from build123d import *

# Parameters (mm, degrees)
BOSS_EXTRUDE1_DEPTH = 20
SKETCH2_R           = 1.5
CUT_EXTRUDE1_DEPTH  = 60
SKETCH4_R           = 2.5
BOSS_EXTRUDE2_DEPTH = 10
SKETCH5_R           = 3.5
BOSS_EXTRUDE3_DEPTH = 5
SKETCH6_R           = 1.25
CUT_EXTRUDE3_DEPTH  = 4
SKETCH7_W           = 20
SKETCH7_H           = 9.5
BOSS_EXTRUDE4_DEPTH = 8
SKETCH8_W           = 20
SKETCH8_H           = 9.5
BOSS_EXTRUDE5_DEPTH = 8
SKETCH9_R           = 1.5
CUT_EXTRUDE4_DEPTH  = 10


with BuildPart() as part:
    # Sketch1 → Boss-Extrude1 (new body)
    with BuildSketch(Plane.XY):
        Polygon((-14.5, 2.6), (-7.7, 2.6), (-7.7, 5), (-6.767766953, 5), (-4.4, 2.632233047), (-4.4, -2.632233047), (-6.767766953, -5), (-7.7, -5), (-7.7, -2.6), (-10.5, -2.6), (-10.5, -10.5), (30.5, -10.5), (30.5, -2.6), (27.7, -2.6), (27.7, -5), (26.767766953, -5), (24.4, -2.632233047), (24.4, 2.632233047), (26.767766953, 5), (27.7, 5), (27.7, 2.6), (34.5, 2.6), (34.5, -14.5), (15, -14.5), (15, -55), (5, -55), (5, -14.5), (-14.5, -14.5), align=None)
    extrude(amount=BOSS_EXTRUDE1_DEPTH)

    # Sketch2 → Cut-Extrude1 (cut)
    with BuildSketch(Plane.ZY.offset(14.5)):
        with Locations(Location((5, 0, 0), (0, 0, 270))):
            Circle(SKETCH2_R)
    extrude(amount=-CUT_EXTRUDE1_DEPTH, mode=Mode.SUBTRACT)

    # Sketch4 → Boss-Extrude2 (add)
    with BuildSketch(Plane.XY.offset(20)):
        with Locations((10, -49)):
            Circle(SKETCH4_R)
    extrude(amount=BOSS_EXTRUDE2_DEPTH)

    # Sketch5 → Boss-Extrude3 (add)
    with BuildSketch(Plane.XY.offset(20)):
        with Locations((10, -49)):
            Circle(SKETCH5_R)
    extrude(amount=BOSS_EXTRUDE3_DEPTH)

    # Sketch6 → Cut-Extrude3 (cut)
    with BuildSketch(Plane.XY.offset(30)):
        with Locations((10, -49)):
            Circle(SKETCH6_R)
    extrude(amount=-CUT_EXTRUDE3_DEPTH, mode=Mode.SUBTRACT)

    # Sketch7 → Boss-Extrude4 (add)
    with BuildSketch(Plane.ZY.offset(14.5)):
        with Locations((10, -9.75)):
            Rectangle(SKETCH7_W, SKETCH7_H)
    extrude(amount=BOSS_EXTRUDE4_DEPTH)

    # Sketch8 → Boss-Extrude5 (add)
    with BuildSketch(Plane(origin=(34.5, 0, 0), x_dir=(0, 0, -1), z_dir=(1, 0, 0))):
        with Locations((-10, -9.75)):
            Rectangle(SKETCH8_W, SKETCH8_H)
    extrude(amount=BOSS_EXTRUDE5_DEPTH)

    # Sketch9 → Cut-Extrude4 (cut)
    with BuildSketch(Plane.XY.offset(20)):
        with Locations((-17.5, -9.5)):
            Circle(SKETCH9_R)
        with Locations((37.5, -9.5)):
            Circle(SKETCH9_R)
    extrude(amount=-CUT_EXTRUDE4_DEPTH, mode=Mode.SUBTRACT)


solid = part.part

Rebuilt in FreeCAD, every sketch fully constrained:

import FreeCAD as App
import Part
import Sketcher

V = App.Vector
Q = App.Units.Quantity


def add_polygon(sketch, points):
    """Adds a closed chain of lines whose ends are joined by coincident constraints."""
    first, n = sketch.GeometryCount, len(points)
    for a, b in zip(points, points[1:] + points[:1]):
        sketch.addGeometry(Part.LineSegment(App.Vector(*a, 0), App.Vector(*b, 0)), False)
    for i in range(n):
        sketch.addConstraint(Sketcher.Constraint("Coincident", first + i, 2, first + (i + 1) % n, 1))

doc = App.newDocument("Part")
body = doc.addObject("PartDesign::Body", "Body")

# Sketch on XY plane
sketch1 = body.newObject("Sketcher::SketchObject", "Sketch")
sketch1.AttachmentSupport = (doc.getObject("XY_Plane"), [""])
sketch1.MapMode = "FlatFace"
add_polygon(sketch1, [(-7.7, 2.6), (-14.5, 2.6), (-14.5, -14.5), (5, -14.5), (5, -55), (15, -55), (15, -14.5), (34.5, -14.5), (34.5, 2.6), (27.7, 2.6), (27.7, 5), (26.8, 5), (24.4, 2.6), (24.4, -2.6), (26.8, -5), (27.7, -5), (27.7, -2.6), (30.5, -2.6), (30.5, -10.5), (-10.5, -10.5), (-10.5, -2.6), (-7.7, -2.6), (-7.7, -5), (-6.8, -5), (-4.4, -2.6), (-4.4, 2.6), (-6.8, 5), (-7.7, 5)])  # lines 0-27
sketch1.addConstraint([
    Sketcher.Constraint("Horizontal", 0),
    Sketcher.Constraint("Vertical", 1),
    Sketcher.Constraint("Horizontal", 2),
    Sketcher.Constraint("Vertical", 3),
    Sketcher.Constraint("Horizontal", 4),
    Sketcher.Constraint("Vertical", 5),
    Sketcher.Constraint("Horizontal", 6),
    Sketcher.Constraint("Vertical", 7),
    Sketcher.Constraint("Horizontal", 8),
    Sketcher.Constraint("Vertical", 9),
    Sketcher.Constraint("Horizontal", 10),
    Sketcher.Constraint("Vertical", 12),
    Sketcher.Constraint("Horizontal", 14),
    Sketcher.Constraint("Vertical", 15),
    Sketcher.Constraint("Horizontal", 16),
    Sketcher.Constraint("Vertical", 17),
    Sketcher.Constraint("Horizontal", 18),
    Sketcher.Constraint("Vertical", 19),
    Sketcher.Constraint("Horizontal", 20),
    Sketcher.Constraint("Vertical", 21),
    Sketcher.Constraint("Horizontal", 22),
    Sketcher.Constraint("Vertical", 24),
    Sketcher.Constraint("Horizontal", 26),
    Sketcher.Constraint("Vertical", 27),
    Sketcher.Constraint("Symmetric", 10, 2, 13, 2, -1),
    Sketcher.Constraint("Symmetric", 8, 2, 15, 2, -1),
    Sketcher.Constraint("Symmetric", 22, 2, 25, 2, -1),
    Sketcher.Constraint("Symmetric", 20, 2, 27, 2, -1),
    Sketcher.Constraint("Perpendicular", 11, 13),
    Sketcher.Constraint("Perpendicular", 13, 23),
    Sketcher.Constraint("Perpendicular", 23, 25),
    Sketcher.Constraint("Horizontal", 2, 2, 5, 2),
    Sketcher.Constraint("Horizontal", 0, 2, 7, 2),
    Sketcher.Constraint("Horizontal", 14, 2, 21, 2),
    Sketcher.Constraint("Horizontal", 12, 2, 23, 2),
    Sketcher.Constraint("Horizontal", 11, 2, 24, 2),
    Sketcher.Constraint("Equal", 2, 6),
    Sketcher.Constraint("Equal", 0, 8),
    Sketcher.Constraint("Equal", 16, 20),
    Sketcher.Constraint("Equal", 14, 22),
    Sketcher.Constraint("DistanceX", 4, 1, 4, 2, Q("10 mm")),
    Sketcher.Constraint("DistanceX", 18, 2, 18, 1, Q("41 mm")),
    Sketcher.Constraint("DistanceX", 0, 2, 0, 1, Q("6.8 mm")),
    Sketcher.Constraint("DistanceX", 2, 1, 2, 2, Q("19.5 mm")),
    Sketcher.Constraint("DistanceY", 1, 2, 1, 1, Q("17.1 mm")),
    Sketcher.Constraint("DistanceY", 3, 2, 3, 1, Q("40.5 mm")),
    Sketcher.Constraint("DistanceY", 9, 1, 9, 2, Q("2.4 mm")),
    Sketcher.Constraint("DistanceY", 17, 2, 17, 1, Q("7.9 mm")),
    Sketcher.Constraint("DistanceX", -1, 1, 2, 2, Q("5 mm")),
    Sketcher.Constraint("DistanceY", 3, 2, -1, 1, Q("55 mm")),
    Sketcher.Constraint("DistanceX", -1, 1, 11, 2, Q("24.4 mm")),
    Sketcher.Constraint("Distance", 11, Q("3.348528 mm")),
])
pad1 = body.newObject("PartDesign::Pad", "Pad")
pad1.Profile = sketch1
pad1.Length = 20

# Sketch on YZ plane
sketch2 = body.newObject("Sketcher::SketchObject", "Sketch001")
sketch2.AttachmentSupport = (doc.getObject("YZ_Plane"), [""])
sketch2.MapMode = "FlatFace"
sketch2.AttachmentOffset = App.Placement(V(0, 0, -14.5), App.Rotation())
sketch2.addGeometry(Part.Circle(V(0, 5, 0), V(0, 0, 1), 1.5), False)
sketch2.addConstraint([
    Sketcher.Constraint("PointOnObject", 0, 3, -2),
    Sketcher.Constraint("Diameter", 0, Q("3 mm")),
    Sketcher.Constraint("DistanceY", -1, 1, 0, 3, Q("5 mm")),
])
pocket1 = body.newObject("PartDesign::Pocket", "Pocket")
pocket1.Profile = sketch2
pocket1.Length = 60
pocket1.Reversed = True

# Sketch on XY plane
sketch3 = body.newObject("Sketcher::SketchObject", "Sketch002")
sketch3.AttachmentSupport = (doc.getObject("XY_Plane"), [""])
sketch3.MapMode = "FlatFace"
sketch3.AttachmentOffset = App.Placement(V(0, 0, 20), App.Rotation())
sketch3.addGeometry(Part.Circle(V(10, -49, 0), V(0, 0, 1), 2.5), False)
sketch3.addConstraint([
    Sketcher.Constraint("Diameter", 0, Q("5 mm")),
    Sketcher.Constraint("DistanceX", -1, 1, 0, 3, Q("10 mm")),
    Sketcher.Constraint("DistanceY", 0, 3, -1, 1, Q("49 mm")),
])
pad2 = body.newObject("PartDesign::Pad", "Pad001")
pad2.Profile = sketch3
pad2.Length = 10

# Sketch on XY plane
sketch4 = body.newObject("Sketcher::SketchObject", "Sketch003")
sketch4.AttachmentSupport = (doc.getObject("XY_Plane"), [""])
sketch4.MapMode = "FlatFace"
sketch4.AttachmentOffset = App.Placement(V(0, 0, 20), App.Rotation())
sketch4.addGeometry(Part.Circle(V(10, -49, 0), V(0, 0, 1), 3.5), False)
sketch4.addConstraint([
    Sketcher.Constraint("Diameter", 0, Q("7 mm")),
    Sketcher.Constraint("DistanceX", -1, 1, 0, 3, Q("10 mm")),
    Sketcher.Constraint("DistanceY", 0, 3, -1, 1, Q("49 mm")),
])
pad3 = body.newObject("PartDesign::Pad", "Pad002")
pad3.Profile = sketch4
pad3.Length = 5

# Sketch on XY plane
sketch5 = body.newObject("Sketcher::SketchObject", "Sketch004")
sketch5.AttachmentSupport = (doc.getObject("XY_Plane"), [""])
sketch5.MapMode = "FlatFace"
sketch5.AttachmentOffset = App.Placement(V(0, 0, 30), App.Rotation())
sketch5.addGeometry(Part.Circle(V(10, -49, 0), V(0, 0, 1), 1.2), False)
sketch5.addConstraint([
    Sketcher.Constraint("Diameter", 0, Q("2.5 mm")),
    Sketcher.Constraint("DistanceX", -1, 1, 0, 3, Q("10 mm")),
    Sketcher.Constraint("DistanceY", 0, 3, -1, 1, Q("49 mm")),
])
pocket2 = body.newObject("PartDesign::Pocket", "Pocket001")
pocket2.Profile = sketch5
pocket2.Length = 4

# Sketch on YZ plane
sketch6 = body.newObject("Sketcher::SketchObject", "Sketch005")
sketch6.AttachmentSupport = (doc.getObject("YZ_Plane"), [""])
sketch6.MapMode = "FlatFace"
sketch6.AttachmentOffset = App.Placement(V(0, 0, -14.5), App.Rotation())
add_polygon(sketch6, [(-5, 0), (-14, 0), (-14, 20), (-5, 20)])  # lines 0-3
sketch6.addConstraint([
    Sketcher.Constraint("Horizontal", 0),
    Sketcher.Constraint("Vertical", 1),
    Sketcher.Constraint("Horizontal", 2),
    Sketcher.Constraint("Vertical", 3),
    Sketcher.Constraint("PointOnObject", 0, 2, -1),
    Sketcher.Constraint("DistanceY", 1, 1, 1, 2, Q("20 mm")),
    Sketcher.Constraint("DistanceX", 0, 2, 0, 1, Q("9.5 mm")),
    Sketcher.Constraint("DistanceX", 2, 2, -1, 1, Q("5 mm")),
])
pad4 = body.newObject("PartDesign::Pad", "Pad003")
pad4.Profile = sketch6
pad4.Length = 8
pad4.Reversed = True

# Sketch on YZ plane
sketch7 = body.newObject("Sketcher::SketchObject", "Sketch006")
sketch7.AttachmentSupport = (doc.getObject("YZ_Plane"), [""])
sketch7.MapMode = "FlatFace"
sketch7.AttachmentOffset = App.Placement(V(0, 0, 34.5), App.Rotation())
add_polygon(sketch7, [(-5, 20), (-14, 20), (-14, 0), (-5, 0)])  # lines 0-3
sketch7.addConstraint([
    Sketcher.Constraint("Horizontal", 0),
    Sketcher.Constraint("Vertical", 1),
    Sketcher.Constraint("Horizontal", 2),
    Sketcher.Constraint("Vertical", 3),
    Sketcher.Constraint("PointOnObject", 1, 2, -1),
    Sketcher.Constraint("DistanceY", 1, 2, 1, 1, Q("20 mm")),
    Sketcher.Constraint("DistanceX", 0, 2, 0, 1, Q("9.5 mm")),
    Sketcher.Constraint("DistanceX", 2, 2, -1, 1, Q("5 mm")),
])
pad5 = body.newObject("PartDesign::Pad", "Pad004")
pad5.Profile = sketch7
pad5.Length = 8

# Sketch on XY plane
sketch8 = body.newObject("Sketcher::SketchObject", "Sketch007")
sketch8.AttachmentSupport = (doc.getObject("XY_Plane"), [""])
sketch8.MapMode = "FlatFace"
sketch8.AttachmentOffset = App.Placement(V(0, 0, 20), App.Rotation())
sketch8.addGeometry([
    Part.Circle(V(-17.5, -9.5, 0), V(0, 0, 1), 1.5),
    Part.Circle(V(37.5, -9.5, 0), V(0, 0, 1), 1.5),
], False)
sketch8.addConstraint([
    Sketcher.Constraint("Equal", 0, 1),
    Sketcher.Constraint("Horizontal", 0, 3, 1, 3),
    Sketcher.Constraint("Diameter", 0, Q("3 mm")),
    Sketcher.Constraint("DistanceX", 0, 3, 1, 3, Q("55 mm")),
    Sketcher.Constraint("DistanceX", 0, 3, -1, 1, Q("17.5 mm")),
    Sketcher.Constraint("DistanceY", 0, 3, -1, 1, Q("9.5 mm")),
])
pocket3 = body.newObject("PartDesign::Pocket", "Pocket002")
pocket3.Profile = sketch8
pocket3.Length = 10

doc.recompute()
